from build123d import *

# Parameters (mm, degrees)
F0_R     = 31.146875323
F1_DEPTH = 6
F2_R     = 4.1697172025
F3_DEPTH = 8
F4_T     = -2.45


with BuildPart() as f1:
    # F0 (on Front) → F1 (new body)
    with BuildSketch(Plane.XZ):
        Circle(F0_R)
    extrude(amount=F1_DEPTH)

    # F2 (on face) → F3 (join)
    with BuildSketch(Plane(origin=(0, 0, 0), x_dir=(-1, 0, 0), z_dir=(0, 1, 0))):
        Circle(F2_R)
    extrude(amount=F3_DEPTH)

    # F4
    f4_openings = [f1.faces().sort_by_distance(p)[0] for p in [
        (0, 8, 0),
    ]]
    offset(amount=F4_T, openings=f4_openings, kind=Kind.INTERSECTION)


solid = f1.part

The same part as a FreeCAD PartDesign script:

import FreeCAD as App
import Part
import Sketcher
Q = App.Units.Quantity


def faces_at(feature, points):
    """Names of the faces that lie closest to the given points."""
    faces = feature.Shape.Faces
    near = lambda p: min(range(len(faces)), key=lambda i: faces[i].distToShape(Part.Vertex(*p))[0])
    return sorted({f"Face{near(p) + 1}" for p in points})

doc = App.newDocument("Part")
params = doc.addObject("Spreadsheet::Sheet", "Params")
for row, (alias, value) in enumerate([
    ("pad1_length", "6 mm"),
    ("pad2_length", "8 mm"),
    ("thickness_wall", "2.45 mm"),
], start=1):
    params.set(f"A{row}", alias)
    params.set(f"B{row}", "=" + value)
    params.setAlias(f"B{row}", alias)

body = doc.addObject("PartDesign::Body", "Body")

sketch1 = body.newObject("Sketcher::SketchObject", "Sketch")
sketch1.AttachmentSupport = (doc.getObject("XZ_Plane"), [""])
sketch1.MapMode = "FlatFace"
sketch1.addGeometry(Part.Circle(App.Vector(0, 0, 0), App.Vector(0, 0, 1), 31.146875), False)
sketch1.addConstraint([
    Sketcher.Constraint("Coincident", 0, 3, -1, 1),
    Sketcher.Constraint("Diameter", 0, Q("62.293751 mm")),
])
pad1 = body.newObject("PartDesign::Pad", "Pad")
pad1.Profile = sketch1
pad1.setExpression("Length", "Params.pad1_length")

sketch2 = body.newObject("Sketcher::SketchObject", "Sketch001")
sketch2.AttachmentSupport = (doc.getObject("XZ_Plane"), [""])
sketch2.MapMode = "FlatFace"
sketch2.addGeometry(Part.Circle(App.Vector(0, 0, 0), App.Vector(0, 0, 1), 4.169717), False)
sketch2.addConstraint([
    Sketcher.Constraint("Coincident", 0, 3, -1, 1),
    Sketcher.Constraint("Diameter", 0, Q("8.339434 mm")),
])
pad2 = body.newObject("PartDesign::Pad", "Pad001")
pad2.Profile = sketch2
pad2.setExpression("Length", "Params.pad2_length")
pad2.Reversed = True
doc.recompute()

thickness = body.newObject("PartDesign::Thickness", "Thickness")
thickness.Base = (pad2, faces_at(pad2, [(0, 8, 0)]))
thickness.setExpression("Value", "Params.thickness_wall")
thickness.Reversed = True
thickness.Join = "Intersection"

doc.recompute()
